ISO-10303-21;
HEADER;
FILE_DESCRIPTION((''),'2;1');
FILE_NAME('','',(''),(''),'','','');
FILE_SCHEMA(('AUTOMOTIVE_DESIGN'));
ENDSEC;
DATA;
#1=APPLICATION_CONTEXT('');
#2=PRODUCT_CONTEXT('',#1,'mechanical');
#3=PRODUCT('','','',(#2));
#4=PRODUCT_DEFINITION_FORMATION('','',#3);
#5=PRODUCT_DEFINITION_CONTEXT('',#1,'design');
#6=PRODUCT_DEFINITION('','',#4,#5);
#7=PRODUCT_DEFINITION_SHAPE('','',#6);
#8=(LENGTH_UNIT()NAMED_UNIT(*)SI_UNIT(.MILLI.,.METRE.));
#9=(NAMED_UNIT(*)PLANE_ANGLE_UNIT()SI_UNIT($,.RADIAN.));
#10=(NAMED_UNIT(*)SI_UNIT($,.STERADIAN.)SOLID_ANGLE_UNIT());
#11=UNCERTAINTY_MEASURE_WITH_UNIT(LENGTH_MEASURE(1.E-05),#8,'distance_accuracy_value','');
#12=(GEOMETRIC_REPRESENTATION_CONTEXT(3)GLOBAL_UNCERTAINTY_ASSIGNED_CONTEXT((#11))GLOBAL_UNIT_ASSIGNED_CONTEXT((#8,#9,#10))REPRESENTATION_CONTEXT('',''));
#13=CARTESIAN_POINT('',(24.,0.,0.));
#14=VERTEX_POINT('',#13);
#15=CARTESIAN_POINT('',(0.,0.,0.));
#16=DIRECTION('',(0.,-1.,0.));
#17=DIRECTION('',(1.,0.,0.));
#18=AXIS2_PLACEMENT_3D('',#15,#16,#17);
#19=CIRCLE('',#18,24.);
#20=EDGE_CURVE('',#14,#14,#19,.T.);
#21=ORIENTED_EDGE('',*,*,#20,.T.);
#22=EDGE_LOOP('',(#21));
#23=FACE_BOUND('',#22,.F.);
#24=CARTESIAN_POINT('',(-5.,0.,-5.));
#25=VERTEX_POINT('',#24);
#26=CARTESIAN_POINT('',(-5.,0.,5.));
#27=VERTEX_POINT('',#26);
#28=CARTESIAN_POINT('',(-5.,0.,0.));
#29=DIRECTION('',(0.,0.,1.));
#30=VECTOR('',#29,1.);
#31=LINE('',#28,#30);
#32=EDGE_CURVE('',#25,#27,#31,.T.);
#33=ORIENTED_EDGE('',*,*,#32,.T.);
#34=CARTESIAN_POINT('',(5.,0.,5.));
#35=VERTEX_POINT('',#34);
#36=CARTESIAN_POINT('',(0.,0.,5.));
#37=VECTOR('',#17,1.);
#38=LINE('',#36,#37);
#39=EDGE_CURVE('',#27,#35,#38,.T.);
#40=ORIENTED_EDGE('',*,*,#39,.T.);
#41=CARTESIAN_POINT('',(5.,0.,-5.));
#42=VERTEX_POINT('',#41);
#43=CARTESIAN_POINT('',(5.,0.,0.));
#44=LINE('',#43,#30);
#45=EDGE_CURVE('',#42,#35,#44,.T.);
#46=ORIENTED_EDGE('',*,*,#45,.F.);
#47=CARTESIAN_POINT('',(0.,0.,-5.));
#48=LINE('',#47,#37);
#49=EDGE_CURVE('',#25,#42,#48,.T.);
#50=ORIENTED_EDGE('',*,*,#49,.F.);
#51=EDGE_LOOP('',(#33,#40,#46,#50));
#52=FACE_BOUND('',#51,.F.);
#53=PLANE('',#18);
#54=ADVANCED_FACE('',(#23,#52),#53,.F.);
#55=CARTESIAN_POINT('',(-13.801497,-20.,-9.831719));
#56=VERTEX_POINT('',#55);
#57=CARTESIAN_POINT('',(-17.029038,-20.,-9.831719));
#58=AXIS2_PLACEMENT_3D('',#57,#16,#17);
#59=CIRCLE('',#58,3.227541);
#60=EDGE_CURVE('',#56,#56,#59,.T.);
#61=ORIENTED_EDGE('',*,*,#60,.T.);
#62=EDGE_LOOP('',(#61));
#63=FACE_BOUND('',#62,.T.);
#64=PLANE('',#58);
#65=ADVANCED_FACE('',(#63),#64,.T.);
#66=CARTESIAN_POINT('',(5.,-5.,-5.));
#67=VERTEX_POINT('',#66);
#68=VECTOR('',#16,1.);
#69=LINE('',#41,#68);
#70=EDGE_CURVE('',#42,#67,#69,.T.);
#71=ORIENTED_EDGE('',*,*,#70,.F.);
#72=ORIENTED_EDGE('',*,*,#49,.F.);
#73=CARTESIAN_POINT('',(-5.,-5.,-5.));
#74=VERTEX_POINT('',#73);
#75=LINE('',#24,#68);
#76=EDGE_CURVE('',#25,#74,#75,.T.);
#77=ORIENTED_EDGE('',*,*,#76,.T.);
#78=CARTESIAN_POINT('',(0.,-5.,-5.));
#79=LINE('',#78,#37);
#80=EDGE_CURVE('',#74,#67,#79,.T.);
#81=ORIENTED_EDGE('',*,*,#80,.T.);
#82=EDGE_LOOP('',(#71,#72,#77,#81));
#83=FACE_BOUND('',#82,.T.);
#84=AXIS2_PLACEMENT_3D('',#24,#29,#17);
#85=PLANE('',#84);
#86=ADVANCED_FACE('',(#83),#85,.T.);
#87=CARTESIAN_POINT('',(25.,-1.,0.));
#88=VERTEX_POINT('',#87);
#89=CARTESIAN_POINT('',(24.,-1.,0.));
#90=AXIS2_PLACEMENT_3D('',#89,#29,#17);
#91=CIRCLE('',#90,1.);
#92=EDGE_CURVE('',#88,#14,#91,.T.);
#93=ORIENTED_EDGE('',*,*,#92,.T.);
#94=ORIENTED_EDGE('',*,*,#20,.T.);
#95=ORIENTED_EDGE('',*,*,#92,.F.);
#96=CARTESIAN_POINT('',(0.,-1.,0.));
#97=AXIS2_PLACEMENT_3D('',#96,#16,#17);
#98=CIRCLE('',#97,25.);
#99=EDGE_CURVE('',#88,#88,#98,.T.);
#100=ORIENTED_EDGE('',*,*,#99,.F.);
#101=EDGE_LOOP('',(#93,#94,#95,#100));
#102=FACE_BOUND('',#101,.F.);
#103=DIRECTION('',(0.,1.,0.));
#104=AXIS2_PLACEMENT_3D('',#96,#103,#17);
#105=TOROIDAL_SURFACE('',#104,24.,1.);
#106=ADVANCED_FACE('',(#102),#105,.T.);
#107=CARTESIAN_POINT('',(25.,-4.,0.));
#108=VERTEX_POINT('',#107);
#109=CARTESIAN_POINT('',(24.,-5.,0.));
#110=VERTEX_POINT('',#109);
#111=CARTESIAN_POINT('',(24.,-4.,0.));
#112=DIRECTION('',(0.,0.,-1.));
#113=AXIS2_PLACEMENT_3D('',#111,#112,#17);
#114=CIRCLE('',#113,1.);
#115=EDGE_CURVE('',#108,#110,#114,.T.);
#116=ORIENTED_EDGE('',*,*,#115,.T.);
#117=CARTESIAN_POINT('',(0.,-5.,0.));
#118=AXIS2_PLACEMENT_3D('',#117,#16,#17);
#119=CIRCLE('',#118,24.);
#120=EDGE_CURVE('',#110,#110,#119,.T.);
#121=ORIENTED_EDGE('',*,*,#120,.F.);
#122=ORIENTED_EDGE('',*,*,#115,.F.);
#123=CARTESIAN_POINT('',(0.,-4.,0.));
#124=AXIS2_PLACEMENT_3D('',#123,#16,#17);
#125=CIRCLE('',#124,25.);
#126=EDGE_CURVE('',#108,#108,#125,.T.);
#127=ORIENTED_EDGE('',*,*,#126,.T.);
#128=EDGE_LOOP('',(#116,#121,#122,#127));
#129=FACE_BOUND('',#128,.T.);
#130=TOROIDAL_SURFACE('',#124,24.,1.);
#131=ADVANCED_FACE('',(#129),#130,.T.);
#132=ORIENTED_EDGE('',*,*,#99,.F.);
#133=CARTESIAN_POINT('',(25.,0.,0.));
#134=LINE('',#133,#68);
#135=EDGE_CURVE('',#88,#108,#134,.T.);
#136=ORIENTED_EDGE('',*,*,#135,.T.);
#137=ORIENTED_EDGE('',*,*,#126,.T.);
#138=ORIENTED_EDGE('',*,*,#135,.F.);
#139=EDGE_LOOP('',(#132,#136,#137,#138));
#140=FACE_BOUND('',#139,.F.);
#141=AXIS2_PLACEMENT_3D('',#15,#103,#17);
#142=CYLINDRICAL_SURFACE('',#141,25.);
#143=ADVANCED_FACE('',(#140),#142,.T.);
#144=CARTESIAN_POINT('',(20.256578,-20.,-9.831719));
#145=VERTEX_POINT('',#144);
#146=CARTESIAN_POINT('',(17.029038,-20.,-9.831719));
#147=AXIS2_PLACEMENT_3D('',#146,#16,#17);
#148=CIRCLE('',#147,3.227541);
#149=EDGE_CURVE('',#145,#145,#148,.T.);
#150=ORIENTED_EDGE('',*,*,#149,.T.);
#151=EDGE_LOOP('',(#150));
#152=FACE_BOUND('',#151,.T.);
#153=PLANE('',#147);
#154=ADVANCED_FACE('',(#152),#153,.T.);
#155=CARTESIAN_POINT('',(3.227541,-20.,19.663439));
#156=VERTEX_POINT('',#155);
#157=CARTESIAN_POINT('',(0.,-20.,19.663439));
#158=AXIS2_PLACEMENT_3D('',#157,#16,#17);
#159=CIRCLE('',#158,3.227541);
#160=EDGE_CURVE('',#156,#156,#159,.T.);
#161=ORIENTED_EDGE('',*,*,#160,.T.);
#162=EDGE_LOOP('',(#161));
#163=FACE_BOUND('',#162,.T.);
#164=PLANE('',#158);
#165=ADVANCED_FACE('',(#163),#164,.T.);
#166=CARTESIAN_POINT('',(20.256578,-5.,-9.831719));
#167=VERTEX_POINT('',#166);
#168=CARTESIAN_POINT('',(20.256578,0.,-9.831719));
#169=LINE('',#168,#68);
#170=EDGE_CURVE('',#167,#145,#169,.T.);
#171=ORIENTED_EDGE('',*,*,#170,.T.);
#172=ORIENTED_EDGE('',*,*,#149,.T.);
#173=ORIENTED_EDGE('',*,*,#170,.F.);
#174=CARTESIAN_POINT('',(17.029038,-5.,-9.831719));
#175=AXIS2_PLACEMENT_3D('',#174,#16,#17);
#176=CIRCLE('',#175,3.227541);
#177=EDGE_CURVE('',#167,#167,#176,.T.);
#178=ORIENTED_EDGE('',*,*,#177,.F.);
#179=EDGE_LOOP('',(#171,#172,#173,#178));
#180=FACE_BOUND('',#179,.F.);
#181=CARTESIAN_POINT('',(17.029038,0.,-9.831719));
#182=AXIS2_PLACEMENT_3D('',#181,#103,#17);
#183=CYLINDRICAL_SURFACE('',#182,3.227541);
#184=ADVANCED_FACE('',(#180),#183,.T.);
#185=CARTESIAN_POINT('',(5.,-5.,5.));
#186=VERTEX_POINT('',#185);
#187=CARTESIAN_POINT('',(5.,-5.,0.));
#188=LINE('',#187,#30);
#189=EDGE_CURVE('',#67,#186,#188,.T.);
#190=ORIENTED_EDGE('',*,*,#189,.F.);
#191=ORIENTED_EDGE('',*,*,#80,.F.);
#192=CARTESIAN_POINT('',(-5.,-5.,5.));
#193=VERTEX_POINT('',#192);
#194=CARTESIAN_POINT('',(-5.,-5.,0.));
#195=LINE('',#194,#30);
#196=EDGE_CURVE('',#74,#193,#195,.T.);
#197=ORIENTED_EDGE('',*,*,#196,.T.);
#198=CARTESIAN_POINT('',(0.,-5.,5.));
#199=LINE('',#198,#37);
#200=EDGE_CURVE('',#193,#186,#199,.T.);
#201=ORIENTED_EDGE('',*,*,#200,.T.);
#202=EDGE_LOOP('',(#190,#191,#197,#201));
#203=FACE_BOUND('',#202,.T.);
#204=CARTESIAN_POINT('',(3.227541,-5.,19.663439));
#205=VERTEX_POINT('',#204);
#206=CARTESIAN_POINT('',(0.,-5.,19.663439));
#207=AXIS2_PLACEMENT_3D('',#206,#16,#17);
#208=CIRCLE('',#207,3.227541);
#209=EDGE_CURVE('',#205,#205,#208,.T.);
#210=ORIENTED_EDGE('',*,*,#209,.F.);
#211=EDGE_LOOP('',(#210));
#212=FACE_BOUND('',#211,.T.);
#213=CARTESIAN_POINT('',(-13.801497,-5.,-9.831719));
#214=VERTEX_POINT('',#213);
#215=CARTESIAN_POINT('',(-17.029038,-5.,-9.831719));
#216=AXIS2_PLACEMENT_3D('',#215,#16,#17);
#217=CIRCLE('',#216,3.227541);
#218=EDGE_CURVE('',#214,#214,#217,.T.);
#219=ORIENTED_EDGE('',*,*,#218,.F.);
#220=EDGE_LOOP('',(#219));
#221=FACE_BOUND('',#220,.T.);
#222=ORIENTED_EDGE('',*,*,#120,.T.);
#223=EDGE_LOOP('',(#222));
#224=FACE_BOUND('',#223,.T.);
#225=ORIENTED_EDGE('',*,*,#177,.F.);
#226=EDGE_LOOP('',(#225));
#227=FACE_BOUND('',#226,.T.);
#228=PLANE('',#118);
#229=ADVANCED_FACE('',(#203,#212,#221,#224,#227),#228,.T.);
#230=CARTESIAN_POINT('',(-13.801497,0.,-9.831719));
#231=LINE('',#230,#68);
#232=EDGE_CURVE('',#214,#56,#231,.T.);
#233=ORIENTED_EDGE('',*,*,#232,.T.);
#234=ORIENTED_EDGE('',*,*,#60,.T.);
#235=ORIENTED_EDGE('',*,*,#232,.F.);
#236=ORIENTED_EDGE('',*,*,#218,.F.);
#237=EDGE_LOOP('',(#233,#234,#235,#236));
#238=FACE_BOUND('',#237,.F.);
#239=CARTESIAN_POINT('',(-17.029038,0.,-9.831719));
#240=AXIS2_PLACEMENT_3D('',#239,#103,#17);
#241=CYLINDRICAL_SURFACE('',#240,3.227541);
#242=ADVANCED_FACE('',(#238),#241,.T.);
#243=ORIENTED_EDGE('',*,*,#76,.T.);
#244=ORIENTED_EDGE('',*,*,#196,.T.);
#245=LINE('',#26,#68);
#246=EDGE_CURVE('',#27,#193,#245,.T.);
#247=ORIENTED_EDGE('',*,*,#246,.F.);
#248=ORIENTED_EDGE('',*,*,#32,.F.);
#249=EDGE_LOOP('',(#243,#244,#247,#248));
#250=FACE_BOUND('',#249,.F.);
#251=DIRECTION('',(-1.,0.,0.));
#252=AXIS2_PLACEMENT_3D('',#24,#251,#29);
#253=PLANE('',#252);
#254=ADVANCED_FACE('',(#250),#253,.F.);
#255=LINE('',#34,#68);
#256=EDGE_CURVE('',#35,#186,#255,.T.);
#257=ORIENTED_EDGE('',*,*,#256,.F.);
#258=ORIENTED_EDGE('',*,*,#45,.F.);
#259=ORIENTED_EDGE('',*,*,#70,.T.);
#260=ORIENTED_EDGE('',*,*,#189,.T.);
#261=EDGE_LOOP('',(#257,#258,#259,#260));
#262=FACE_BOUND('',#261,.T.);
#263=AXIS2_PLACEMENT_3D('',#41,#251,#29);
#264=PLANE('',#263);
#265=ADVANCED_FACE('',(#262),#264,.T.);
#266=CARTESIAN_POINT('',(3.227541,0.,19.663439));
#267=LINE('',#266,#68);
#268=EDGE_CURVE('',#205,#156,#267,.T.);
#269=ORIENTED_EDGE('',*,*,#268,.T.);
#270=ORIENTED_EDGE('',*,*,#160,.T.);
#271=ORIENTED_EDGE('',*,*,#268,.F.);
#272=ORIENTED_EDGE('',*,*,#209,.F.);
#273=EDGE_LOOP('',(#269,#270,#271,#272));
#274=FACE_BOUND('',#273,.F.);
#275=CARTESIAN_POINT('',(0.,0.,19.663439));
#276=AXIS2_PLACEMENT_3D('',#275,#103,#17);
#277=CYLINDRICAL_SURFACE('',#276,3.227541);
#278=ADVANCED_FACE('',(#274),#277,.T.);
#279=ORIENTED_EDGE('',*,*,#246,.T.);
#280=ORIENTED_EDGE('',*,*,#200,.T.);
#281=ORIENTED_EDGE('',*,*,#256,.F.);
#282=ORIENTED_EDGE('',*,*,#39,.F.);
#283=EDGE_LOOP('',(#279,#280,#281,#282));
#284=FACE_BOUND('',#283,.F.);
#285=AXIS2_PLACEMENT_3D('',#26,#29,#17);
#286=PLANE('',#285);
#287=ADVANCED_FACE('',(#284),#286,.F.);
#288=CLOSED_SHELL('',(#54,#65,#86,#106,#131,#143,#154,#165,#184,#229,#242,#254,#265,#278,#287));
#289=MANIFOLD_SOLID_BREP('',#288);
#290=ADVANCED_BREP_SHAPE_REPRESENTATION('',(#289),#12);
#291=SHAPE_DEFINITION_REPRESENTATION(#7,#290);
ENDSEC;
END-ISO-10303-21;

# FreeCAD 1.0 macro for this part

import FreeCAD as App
import Part
import Sketcher
from FreeCAD import Vector
Q = App.Units.Quantity


def edges_at(feature, points):
    """Names of the edges that pass closest to the given points."""
    edges = feature.Shape.Edges
    near = lambda p: min(range(len(edges)), key=lambda i: edges[i].distToShape(Part.Vertex(*p))[0])
    return sorted({f"Edge{near(p) + 1}" for p in points})

doc = App.newDocument("Part")
body = doc.addObject("PartDesign::Body", "Body")

# Sketch on XZ plane
sketch1 = body.newObject("Sketcher::SketchObject", "Sketch")
sketch1.AttachmentSupport = (doc.getObject("XZ_Plane"), [""])
sketch1.MapMode = "FlatFace"
sketch1.addGeometry(Part.Circle(Vector(17, -9.8, 0), Vector(0, 0, 1), 3.2), False)
sketch1.addConstraint([
    Sketcher.Constraint("Diameter", 0, Q("6.455081 mm")),
    Sketcher.Constraint("DistanceY", 0, 3, -1, 1, Q("9.831719 mm")),
    Sketcher.Constraint("DistanceX", -1, 1, 0, 3, Q("17.029038 mm")),
])
pad1 = body.newObject("PartDesign::Pad", "Pad")
pad1.Profile = sketch1
pad1.Length = 20
body2 = doc.addObject("PartDesign::Body", "Body001")

# Sketch on XZ plane
sketch2 = body2.newObject("Sketcher::SketchObject", "Sketch001")
sketch2.AttachmentSupport = (doc.getObject("XZ_Plane001"), [""])
sketch2.MapMode = "FlatFace"
sketch2.addGeometry(Part.Circle(Vector(-17, -9.8, 0), Vector(0, 0, 1), 3.2), False)
sketch2.addConstraint([
    Sketcher.Constraint("Diameter", 0, Q("6.455081 mm")),
    Sketcher.Constraint("DistanceY", 0, 3, -1, 1, Q("9.831719 mm")),
    Sketcher.Constraint("DistanceX", 0, 3, -1, 1, Q("17.029038 mm")),
])
pad2 = body2.newObject("PartDesign::Pad", "Pad001")
pad2.Profile = sketch2
pad2.Length = 20
body3 = doc.addObject("PartDesign::Body", "Body002")

# Sketch on XZ plane
sketch3 = body3.newObject("Sketcher::SketchObject", "Sketch002")
sketch3.AttachmentSupport = (doc.getObject("XZ_Plane002"), [""])
sketch3.MapMode = "FlatFace"
sketch3.addGeometry(Part.Circle(Vector(0, 19.7, 0), Vector(0, 0, 1), 3.2), False)
sketch3.addConstraint([
    Sketcher.Constraint("PointOnObject", 0, 3, -2),
    Sketcher.Constraint("Diameter", 0, Q("6.455081 mm")),
    Sketcher.Constraint("DistanceY", -1, 1, 0, 3, Q("19.663439 mm")),
])
pad3 = body3.newObject("PartDesign::Pad", "Pad002")
pad3.Profile = sketch3
pad3.Length = 20
body.AllowCompound = True
doc.recompute()

boolean = body.newObject("PartDesign::Boolean", "Boolean")
boolean.Type = "Fuse"
boolean.addObjects([body2])
doc.recompute()

boolean2 = body.newObject("PartDesign::Boolean", "Boolean001")
boolean2.Type = "Fuse"
boolean2.addObjects([body3])

# Sketch on XZ plane
sketch4 = body.newObject("Sketcher::SketchObject", "Sketch003")
sketch4.AttachmentSupport = (doc.getObject("XZ_Plane"), [""])
sketch4.MapMode = "FlatFace"
sketch4.addGeometry([
    Part.Circle(Vector(0, 0, 0), Vector(0, 0, 1), 25),  # 0
    Part.Circle(Vector(-17, -9.8, 0), Vector(0, 0, 1), 3.2),  # 1
    Part.Circle(Vector(17, -9.8, 0), Vector(0, 0, 1), 3.2),  # 2
    Part.LineSegment(Vector(5, -5, 0), Vector(-5, -5, 0)),  # 3
    Part.LineSegment(Vector(-5, -5, 0), Vector(-5, 5, 0)),  # 4
    Part.LineSegment(Vector(-5, 5, 0), Vector(5, 5, 0)),  # 5
    Part.LineSegment(Vector(5, 5, 0), Vector(5, -5, 0)),  # 6
    Part.Circle(Vector(0, 19.7, 0), Vector(0, 0, 1), 3.2),  # 7
], False)
sketch4.addConstraint([
    Sketcher.Constraint("Coincident", 3, 2, 4, 1),
    Sketcher.Constraint("Coincident", 4, 2, 5, 1),
    Sketcher.Constraint("Coincident", 5, 2, 6, 1),
    Sketcher.Constraint("Coincident", 6, 2, 3, 1),
    Sketcher.Constraint("Horizontal", 3),
    Sketcher.Constraint("Vertical", 4),
    Sketcher.Constraint("Horizontal", 5),
    Sketcher.Constraint("Vertical", 6),
    Sketcher.Constraint("Coincident", 0, 3, -1, 1),
    Sketcher.Constraint("Equal", 1, 2),
    Sketcher.Constraint("Equal", 2, 7),
    Sketcher.Constraint("Symmetric", 3, 2, 5, 2, -1, 1),
    Sketcher.Constraint("Symmetric", 1, 3, 2, 3, -2),
    Sketcher.Constraint("PointOnObject", 7, 3, -2),
    Sketcher.Constraint("Equal", 5, 4),
    Sketcher.Constraint("Diameter", 0, Q("50 mm")),
    Sketcher.Constraint("DistanceX", 3, 2, 3, 1, Q("10 mm")),
    Sketcher.Constraint("Diameter", 1, Q("6.455081 mm")),
    Sketcher.Constraint("DistanceY", 1, 3, -1, 1, Q("9.831719 mm")),
    Sketcher.Constraint("DistanceY", -1, 1, 7, 3, Q("19.663439 mm")),
    Sketcher.Constraint("DistanceX", 1, 3, -1, 1, Q("17.029038 mm")),
])
pad4 = body.newObject("PartDesign::Pad", "Pad003")
pad4.Profile = sketch4
pad4.Length = 5
doc.recompute()

fillet = body.newObject("PartDesign::Fillet", "Fillet")
fillet.Base = (pad4, edges_at(pad4, [(-25, 0, 0), (-25, -5, 0)]))
fillet.Radius = 1

doc.recompute()
